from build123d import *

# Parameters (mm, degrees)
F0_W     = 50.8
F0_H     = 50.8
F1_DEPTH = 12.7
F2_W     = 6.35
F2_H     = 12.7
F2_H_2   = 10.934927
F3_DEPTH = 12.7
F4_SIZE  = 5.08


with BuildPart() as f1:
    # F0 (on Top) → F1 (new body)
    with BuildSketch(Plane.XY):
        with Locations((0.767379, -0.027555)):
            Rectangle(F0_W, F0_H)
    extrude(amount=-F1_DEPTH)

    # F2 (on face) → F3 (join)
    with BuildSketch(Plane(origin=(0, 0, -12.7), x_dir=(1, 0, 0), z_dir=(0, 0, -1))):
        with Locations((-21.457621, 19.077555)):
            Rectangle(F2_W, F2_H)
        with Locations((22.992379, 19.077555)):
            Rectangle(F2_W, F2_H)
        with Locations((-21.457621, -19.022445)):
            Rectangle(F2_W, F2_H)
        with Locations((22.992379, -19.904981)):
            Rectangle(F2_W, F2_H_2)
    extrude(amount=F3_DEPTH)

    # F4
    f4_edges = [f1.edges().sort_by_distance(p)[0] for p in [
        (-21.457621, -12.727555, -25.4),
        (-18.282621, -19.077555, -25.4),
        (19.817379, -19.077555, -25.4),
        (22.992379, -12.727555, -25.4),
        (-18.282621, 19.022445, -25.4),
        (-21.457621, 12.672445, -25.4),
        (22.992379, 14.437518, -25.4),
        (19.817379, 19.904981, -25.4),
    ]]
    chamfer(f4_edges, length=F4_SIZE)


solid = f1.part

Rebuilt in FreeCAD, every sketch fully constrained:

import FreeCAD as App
import Part
import Sketcher

V = App.Vector
Q = App.Units.Quantity


def edges_at(feature, points):
    """Names of the edges that pass closest to the given points."""
    edges = feature.Shape.Edges
    near = lambda p: min(range(len(edges)), key=lambda i: edges[i].distToShape(Part.Vertex(*p))[0])
    return sorted({f"Edge{near(p) + 1}" for p in points})


def add_polygon(sketch, points):
    """Adds a closed chain of lines whose ends are joined by coincident constraints."""
    first, n = sketch.GeometryCount, len(points)
    for a, b in zip(points, points[1:] + points[:1]):
        sketch.addGeometry(Part.LineSegment(App.Vector(*a, 0), App.Vector(*b, 0)), False)
    for i in range(n):
        sketch.addConstraint(Sketcher.Constraint("Coincident", first + i, 2, first + (i + 1) % n, 1))

doc = App.newDocument("Part")
params = doc.addObject("Spreadsheet::Sheet", "Params")
for row, (alias, value) in enumerate([
    ("sketch1_width", "2 in"),
    ("pad1_length", "0.5 in"),
    ("sketch2_height", "0.5 in"),
    ("sketch2_width", "0.25 in"),
    ("pad2_length", "0.5 in"),
    ("chamfer_size", "0.2 in"),
], start=1):
    params.set(f"A{row}", alias)
    params.set(f"B{row}", "=" + value)
    params.setAlias(f"B{row}", alias)

body = doc.addObject("PartDesign::Body", "Body")

# Sketch on XY plane
sketch1 = body.newObject("Sketcher::SketchObject", "Sketch")
sketch1.AttachmentSupport = (doc.getObject("XY_Plane"), [""])
sketch1.MapMode = "FlatFace"
add_polygon(sketch1, [(-25, 25), (-25, -25), (26, -25), (26, 25)])  # lines 0-3
sketch1.addConstraint(Sketcher.Constraint("Vertical", 0))
sketch1.addConstraint(Sketcher.Constraint("Horizontal", 1))
sketch1.addConstraint(Sketcher.Constraint("Vertical", 2))
sketch1.addConstraint(Sketcher.Constraint("Horizontal", 3))
sketch1.addConstraint(Sketcher.Constraint("Equal", 3, 0))
sketch1.addConstraint(Sketcher.Constraint("DistanceX", 1, 1, 1, 2, Q("2 in")))
sketch1.addConstraint(Sketcher.Constraint("DistanceX", 0, 2, -1, 1, 24.632621))
sketch1.addConstraint(Sketcher.Constraint("DistanceY", 0, 2, -1, 1, 25.427555))
sketch1.setExpression("Constraints[9]", "Params.sketch1_width")
pad1 = body.newObject("PartDesign::Pad", "Pad")
pad1.Profile = sketch1
pad1.setExpression("Length", "Params.pad1_length")
pad1.Reversed = True

# Sketch on XY plane
sketch2 = body.newObject("Sketcher::SketchObject", "Sketch001")
sketch2.AttachmentSupport = (doc.getObject("XY_Plane"), [""])
sketch2.MapMode = "FlatFace"
sketch2.AttachmentOffset = App.Placement(V(0, 0, -0.5 * 25.4), App.Rotation())
add_polygon(sketch2, [(-25, -25), (-25, -13), (-18, -13), (-18, -25)])  # lines 0-3
add_polygon(sketch2, [(20, -25), (20, -13), (26, -13), (26, -25)])  # lines 4-7
add_polygon(sketch2, [(-25, 13), (-25, 25), (-18, 25), (-18, 13)])  # lines 8-11
add_polygon(sketch2, [(20, 14), (20, 25), (26, 25), (26, 14)])  # lines 12-15
sketch2.addConstraint(Sketcher.Constraint("Vertical", 0))
sketch2.addConstraint(Sketcher.Constraint("Horizontal", 1))
sketch2.addConstraint(Sketcher.Constraint("Vertical", 2))
sketch2.addConstraint(Sketcher.Constraint("Horizontal", 3))
sketch2.addConstraint(Sketcher.Constraint("Vertical", 4))
sketch2.addConstraint(Sketcher.Constraint("Horizontal", 5))
sketch2.addConstraint(Sketcher.Constraint("Vertical", 6))
sketch2.addConstraint(Sketcher.Constraint("Horizontal", 7))
sketch2.addConstraint(Sketcher.Constraint("Vertical", 8))
sketch2.addConstraint(Sketcher.Constraint("Horizontal", 9))
sketch2.addConstraint(Sketcher.Constraint("Vertical", 10))
sketch2.addConstraint(Sketcher.Constraint("Horizontal", 11))
sketch2.addConstraint(Sketcher.Constraint("Vertical", 12))
sketch2.addConstraint(Sketcher.Constraint("Horizontal", 13))
sketch2.addConstraint(Sketcher.Constraint("Vertical", 14))
sketch2.addConstraint(Sketcher.Constraint("Horizontal", 15))
sketch2.addConstraint(Sketcher.Constraint("Horizontal", 1, 2, 4, 2))
sketch2.addConstraint(Sketcher.Constraint("Horizontal", 3, 2, 6, 2))
sketch2.addConstraint(Sketcher.Constraint("Horizontal", 9, 2, 12, 2))
sketch2.addConstraint(Sketcher.Constraint("Vertical", 3, 2, 8, 2))
sketch2.addConstraint(Sketcher.Constraint("Vertical", 2, 2, 9, 2))
sketch2.addConstraint(Sketcher.Constraint("Vertical", 7, 2, 12, 2))
sketch2.addConstraint(Sketcher.Constraint("Vertical", 6, 2, 13, 2))
sketch2.addConstraint(Sketcher.Constraint("Equal", 3, 5))
sketch2.addConstraint(Sketcher.Constraint("Equal", 6, 8))
sketch2.addConstraint(Sketcher.Constraint("DistanceY", 0, 1, 0, 2, Q("0.5 in")))
sketch2.addConstraint(Sketcher.Constraint("DistanceX", 0, 2, 5, 2, Q("2 in")))
sketch2.addConstraint(Sketcher.Constraint("DistanceY", 3, 2, 8, 2, Q("2 in")))
sketch2.addConstraint(Sketcher.Constraint("DistanceX", 1, 1, 1, 2, Q("0.25 in")))
sketch2.addConstraint(Sketcher.Constraint("DistanceY", 12, 1, 12, 2, 10.934927))
sketch2.addConstraint(Sketcher.Constraint("DistanceX", 0, 2, -1, 1, 24.632621))
sketch2.addConstraint(Sketcher.Constraint("DistanceY", 0, 2, -1, 1, 12.727555))
sketch2.setExpression("Constraints[41]", "Params.sketch2_height")
sketch2.setExpression("Constraints[44]", "Params.sketch2_width")
pad2 = body.newObject("PartDesign::Pad", "Pad001")
pad2.Profile = sketch2
pad2.setExpression("Length", "Params.pad2_length")
pad2.Reversed = True
doc.recompute()

chamfer = body.newObject("PartDesign::Chamfer", "Chamfer")
chamfer.Base = (pad2, edges_at(pad2, [
    (-21.458, -12.728, -25.4),
    (-18.283, -19.078, -25.4),
    (19.817, -19.078, -25.4),
    (22.992, -12.728, -25.4),
    (-18.283, 19.022, -25.4),
    (-21.458, 12.672, -25.4),
    (22.992, 14.438, -25.4),
    (19.817, 19.905, -25.4),
]))
chamfer.setExpression("Size", "Params.chamfer_size")

doc.recompute()
